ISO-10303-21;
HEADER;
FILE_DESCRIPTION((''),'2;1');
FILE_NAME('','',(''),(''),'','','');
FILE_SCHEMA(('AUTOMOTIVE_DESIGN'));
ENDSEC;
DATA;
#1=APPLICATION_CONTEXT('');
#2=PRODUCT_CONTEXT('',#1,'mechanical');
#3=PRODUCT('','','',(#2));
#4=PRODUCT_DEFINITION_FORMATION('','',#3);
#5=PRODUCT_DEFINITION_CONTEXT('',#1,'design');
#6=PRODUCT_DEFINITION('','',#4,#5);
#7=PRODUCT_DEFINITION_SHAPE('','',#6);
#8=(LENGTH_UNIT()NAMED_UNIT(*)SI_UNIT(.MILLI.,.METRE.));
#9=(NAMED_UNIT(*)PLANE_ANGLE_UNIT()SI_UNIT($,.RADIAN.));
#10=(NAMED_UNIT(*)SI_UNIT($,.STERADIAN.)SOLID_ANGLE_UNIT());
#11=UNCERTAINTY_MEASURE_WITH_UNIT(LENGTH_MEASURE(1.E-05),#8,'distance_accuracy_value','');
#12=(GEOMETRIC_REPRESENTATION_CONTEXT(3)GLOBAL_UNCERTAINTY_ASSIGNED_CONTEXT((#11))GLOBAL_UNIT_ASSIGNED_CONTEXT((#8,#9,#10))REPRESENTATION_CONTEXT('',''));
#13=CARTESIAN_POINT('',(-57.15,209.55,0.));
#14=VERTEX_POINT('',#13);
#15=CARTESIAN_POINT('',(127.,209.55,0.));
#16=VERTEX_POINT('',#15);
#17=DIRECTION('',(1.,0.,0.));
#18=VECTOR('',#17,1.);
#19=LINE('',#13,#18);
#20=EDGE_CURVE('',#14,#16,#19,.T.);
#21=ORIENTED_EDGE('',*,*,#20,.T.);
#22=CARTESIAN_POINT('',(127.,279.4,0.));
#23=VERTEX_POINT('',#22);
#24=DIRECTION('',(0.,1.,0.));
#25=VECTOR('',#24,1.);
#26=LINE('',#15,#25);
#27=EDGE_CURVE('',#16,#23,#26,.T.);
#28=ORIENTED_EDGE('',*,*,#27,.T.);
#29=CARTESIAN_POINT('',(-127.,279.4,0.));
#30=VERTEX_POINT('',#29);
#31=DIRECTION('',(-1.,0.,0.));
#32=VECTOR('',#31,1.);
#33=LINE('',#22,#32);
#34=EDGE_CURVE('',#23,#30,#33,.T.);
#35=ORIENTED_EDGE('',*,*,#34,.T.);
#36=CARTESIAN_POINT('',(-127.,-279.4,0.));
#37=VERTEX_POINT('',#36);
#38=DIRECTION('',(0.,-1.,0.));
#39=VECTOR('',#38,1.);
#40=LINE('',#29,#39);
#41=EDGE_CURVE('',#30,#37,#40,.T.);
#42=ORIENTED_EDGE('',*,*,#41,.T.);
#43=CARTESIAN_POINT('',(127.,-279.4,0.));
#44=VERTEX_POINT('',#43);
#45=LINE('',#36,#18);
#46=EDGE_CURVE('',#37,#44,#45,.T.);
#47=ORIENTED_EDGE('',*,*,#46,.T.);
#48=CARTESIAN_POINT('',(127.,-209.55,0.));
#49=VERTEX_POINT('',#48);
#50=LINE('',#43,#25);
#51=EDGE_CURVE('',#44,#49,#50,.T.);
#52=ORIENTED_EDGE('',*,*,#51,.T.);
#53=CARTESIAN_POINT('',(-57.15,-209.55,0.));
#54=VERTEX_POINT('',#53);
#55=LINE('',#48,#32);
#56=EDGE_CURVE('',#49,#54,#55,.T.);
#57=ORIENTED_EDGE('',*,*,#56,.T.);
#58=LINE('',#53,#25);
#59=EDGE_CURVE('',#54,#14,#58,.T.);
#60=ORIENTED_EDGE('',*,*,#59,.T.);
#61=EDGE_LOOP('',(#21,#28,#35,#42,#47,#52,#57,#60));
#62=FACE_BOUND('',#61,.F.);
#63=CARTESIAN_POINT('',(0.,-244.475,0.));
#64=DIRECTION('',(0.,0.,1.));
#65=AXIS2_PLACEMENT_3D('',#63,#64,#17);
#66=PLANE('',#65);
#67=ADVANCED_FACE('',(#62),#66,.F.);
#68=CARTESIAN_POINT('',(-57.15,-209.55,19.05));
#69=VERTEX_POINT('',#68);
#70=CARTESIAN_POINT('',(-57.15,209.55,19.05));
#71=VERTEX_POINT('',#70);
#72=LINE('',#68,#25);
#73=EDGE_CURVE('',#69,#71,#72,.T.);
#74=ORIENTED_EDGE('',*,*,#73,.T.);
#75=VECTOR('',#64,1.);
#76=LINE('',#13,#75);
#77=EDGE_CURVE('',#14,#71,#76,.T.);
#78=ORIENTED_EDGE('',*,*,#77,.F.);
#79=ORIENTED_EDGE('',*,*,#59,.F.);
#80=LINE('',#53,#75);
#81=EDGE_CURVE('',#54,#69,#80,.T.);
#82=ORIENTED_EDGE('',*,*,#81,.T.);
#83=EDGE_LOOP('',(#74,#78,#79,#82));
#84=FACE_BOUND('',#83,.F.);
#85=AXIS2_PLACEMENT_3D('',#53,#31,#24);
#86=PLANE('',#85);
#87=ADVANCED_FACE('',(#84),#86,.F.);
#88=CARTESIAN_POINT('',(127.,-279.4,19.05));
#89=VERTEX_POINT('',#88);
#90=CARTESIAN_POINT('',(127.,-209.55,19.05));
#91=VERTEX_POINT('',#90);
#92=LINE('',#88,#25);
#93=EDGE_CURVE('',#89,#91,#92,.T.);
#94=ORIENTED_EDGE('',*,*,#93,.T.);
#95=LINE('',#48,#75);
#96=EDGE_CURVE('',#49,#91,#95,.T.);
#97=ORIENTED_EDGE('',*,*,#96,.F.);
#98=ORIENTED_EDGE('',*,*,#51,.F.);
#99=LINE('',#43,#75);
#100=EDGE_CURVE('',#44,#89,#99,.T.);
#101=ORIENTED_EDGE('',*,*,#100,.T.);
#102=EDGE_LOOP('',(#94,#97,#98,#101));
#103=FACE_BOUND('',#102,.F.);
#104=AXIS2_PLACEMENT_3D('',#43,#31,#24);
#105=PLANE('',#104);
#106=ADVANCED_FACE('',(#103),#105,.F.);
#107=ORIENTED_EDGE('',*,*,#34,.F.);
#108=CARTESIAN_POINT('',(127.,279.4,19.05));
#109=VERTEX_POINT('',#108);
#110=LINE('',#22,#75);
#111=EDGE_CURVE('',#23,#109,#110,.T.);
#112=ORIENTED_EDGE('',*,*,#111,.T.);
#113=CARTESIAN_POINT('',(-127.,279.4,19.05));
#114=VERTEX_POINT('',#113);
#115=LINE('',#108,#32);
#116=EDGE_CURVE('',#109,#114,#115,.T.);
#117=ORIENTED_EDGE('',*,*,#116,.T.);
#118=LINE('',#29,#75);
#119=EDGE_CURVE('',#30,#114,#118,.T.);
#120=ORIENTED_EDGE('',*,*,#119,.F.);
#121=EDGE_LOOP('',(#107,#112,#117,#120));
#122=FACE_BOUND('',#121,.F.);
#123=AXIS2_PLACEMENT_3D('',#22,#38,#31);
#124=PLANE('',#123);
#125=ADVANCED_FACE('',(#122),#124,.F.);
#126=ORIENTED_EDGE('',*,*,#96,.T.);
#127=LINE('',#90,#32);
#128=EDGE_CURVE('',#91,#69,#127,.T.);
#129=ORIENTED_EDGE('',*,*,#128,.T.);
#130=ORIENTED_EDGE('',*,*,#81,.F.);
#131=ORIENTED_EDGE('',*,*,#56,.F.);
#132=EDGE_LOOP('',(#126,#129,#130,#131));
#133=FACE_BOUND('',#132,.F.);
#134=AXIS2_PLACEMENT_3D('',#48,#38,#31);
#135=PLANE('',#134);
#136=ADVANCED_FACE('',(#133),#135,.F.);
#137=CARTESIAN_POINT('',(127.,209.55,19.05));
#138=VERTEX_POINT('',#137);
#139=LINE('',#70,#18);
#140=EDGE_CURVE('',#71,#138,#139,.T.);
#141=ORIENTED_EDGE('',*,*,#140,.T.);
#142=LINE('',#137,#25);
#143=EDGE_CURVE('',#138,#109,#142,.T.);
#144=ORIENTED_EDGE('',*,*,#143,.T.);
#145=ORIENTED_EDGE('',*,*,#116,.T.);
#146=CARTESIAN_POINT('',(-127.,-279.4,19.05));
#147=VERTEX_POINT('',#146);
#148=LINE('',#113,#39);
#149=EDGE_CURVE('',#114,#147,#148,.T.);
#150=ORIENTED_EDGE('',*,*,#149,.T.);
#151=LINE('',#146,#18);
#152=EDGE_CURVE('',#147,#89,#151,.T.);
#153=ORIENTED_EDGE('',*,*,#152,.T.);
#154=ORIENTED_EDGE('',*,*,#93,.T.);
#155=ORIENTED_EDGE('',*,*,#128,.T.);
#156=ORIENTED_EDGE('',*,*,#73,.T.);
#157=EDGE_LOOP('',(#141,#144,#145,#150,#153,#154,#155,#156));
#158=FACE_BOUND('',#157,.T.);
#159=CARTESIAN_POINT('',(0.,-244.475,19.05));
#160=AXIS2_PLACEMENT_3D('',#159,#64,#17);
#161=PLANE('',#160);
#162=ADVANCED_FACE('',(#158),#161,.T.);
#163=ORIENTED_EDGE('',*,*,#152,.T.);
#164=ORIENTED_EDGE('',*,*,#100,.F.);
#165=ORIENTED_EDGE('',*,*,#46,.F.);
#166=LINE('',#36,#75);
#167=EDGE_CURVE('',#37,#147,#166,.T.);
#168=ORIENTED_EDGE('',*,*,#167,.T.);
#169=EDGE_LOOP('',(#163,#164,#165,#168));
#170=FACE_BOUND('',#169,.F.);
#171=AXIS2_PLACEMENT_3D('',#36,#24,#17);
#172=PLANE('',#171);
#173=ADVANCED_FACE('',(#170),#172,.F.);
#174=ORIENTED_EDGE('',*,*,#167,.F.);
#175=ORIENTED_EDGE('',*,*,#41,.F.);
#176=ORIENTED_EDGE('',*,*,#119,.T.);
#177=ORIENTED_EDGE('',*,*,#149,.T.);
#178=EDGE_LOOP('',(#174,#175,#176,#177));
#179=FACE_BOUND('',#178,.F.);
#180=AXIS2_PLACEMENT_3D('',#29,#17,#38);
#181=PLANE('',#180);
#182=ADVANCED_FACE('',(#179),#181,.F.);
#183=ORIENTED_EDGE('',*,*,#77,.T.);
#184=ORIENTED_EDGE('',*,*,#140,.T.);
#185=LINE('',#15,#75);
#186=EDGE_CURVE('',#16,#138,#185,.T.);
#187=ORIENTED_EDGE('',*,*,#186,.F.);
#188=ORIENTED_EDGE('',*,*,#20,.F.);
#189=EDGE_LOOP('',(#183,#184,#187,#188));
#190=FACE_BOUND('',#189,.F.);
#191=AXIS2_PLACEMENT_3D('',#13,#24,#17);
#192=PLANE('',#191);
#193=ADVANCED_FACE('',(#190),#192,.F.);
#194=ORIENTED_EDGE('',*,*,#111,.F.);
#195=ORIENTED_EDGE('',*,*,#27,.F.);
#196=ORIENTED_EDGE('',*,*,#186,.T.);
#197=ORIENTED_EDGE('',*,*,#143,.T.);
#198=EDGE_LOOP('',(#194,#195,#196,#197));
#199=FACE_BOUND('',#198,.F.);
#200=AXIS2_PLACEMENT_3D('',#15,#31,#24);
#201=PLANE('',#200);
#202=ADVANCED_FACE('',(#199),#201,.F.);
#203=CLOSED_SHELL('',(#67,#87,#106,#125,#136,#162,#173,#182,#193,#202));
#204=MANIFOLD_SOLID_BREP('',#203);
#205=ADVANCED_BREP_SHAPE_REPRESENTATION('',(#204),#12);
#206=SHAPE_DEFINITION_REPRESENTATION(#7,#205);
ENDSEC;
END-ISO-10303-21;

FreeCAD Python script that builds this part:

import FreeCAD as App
import Part
import Sketcher

V = App.Vector
Q = App.Units.Quantity

doc = App.newDocument("Part")
body = doc.addObject("PartDesign::Body", "Body")

# Sketch on XY plane
sketch1 = body.newObject("Sketcher::SketchObject", "Sketch")
sketch1.AttachmentSupport = (doc.getObject("XY_Plane"), [""])
sketch1.MapMode = "FlatFace"
sketch1.addGeometry([
    Part.LineSegment(V(-127, -279.4, 0), V(127, -279.4, 0)),  # 0
    Part.LineSegment(V(127, -279.4, 0), V(127, -209.55, 0)),  # 1
    Part.LineSegment(V(127, -209.55, 0), V(-57.15, -209.55, 0)),  # 2
    Part.LineSegment(V(-57.15, -209.55, 0), V(-57.15, 209.55, 0)),  # 3
    Part.LineSegment(V(-57.15, 209.55, 0), V(127, 209.55, 0)),  # 4
    Part.LineSegment(V(127, 209.55, 0), V(127, 279.4, 0)),  # 5
    Part.LineSegment(V(127, 279.4, 0), V(-127, 279.4, 0)),  # 6
    Part.LineSegment(V(-127, 279.4, 0), V(-127, -279.4, 0)),  # 7
], False)
sketch1.addConstraint([
    Sketcher.Constraint("Coincident", 0, 2, 1, 1),
    Sketcher.Constraint("Coincident", 1, 2, 2, 1),
    Sketcher.Constraint("Coincident", 2, 2, 3, 1),
    Sketcher.Constraint("Coincident", 3, 2, 4, 1),
    Sketcher.Constraint("Coincident", 4, 2, 5, 1),
    Sketcher.Constraint("Coincident", 5, 2, 6, 1),
    Sketcher.Constraint("Coincident", 6, 2, 7, 1),
    Sketcher.Constraint("Coincident", 7, 2, 0, 1),
    Sketcher.Constraint("Horizontal", 0),
    Sketcher.Constraint("Vertical", 1),
    Sketcher.Constraint("Horizontal", 2),
    Sketcher.Constraint("Vertical", 3),
    Sketcher.Constraint("Horizontal", 4),
    Sketcher.Constraint("Vertical", 5),
    Sketcher.Constraint("Horizontal", 6),
    Sketcher.Constraint("Vertical", 7),
    Sketcher.Constraint("Symmetric", 0, 2, 6, 2, -1, 1),
    Sketcher.Constraint("Symmetric", 1, 2, 4, 2, -1),
    Sketcher.Constraint("DistanceX", 0, 1, 0, 2, Q("10 in")),
    Sketcher.Constraint("DistanceY", 7, 2, 7, 1, Q("22 in")),
    Sketcher.Constraint("DistanceY", 3, 1, 3, 2, Q("16.5 in")),
    Sketcher.Constraint("DistanceX", 2, 2, 2, 1, Q("7.25 in")),
])
pad1 = body.newObject("PartDesign::Pad", "Pad")
pad1.Profile = sketch1
pad1.Length = Q("0.75 in")

doc.recompute()
